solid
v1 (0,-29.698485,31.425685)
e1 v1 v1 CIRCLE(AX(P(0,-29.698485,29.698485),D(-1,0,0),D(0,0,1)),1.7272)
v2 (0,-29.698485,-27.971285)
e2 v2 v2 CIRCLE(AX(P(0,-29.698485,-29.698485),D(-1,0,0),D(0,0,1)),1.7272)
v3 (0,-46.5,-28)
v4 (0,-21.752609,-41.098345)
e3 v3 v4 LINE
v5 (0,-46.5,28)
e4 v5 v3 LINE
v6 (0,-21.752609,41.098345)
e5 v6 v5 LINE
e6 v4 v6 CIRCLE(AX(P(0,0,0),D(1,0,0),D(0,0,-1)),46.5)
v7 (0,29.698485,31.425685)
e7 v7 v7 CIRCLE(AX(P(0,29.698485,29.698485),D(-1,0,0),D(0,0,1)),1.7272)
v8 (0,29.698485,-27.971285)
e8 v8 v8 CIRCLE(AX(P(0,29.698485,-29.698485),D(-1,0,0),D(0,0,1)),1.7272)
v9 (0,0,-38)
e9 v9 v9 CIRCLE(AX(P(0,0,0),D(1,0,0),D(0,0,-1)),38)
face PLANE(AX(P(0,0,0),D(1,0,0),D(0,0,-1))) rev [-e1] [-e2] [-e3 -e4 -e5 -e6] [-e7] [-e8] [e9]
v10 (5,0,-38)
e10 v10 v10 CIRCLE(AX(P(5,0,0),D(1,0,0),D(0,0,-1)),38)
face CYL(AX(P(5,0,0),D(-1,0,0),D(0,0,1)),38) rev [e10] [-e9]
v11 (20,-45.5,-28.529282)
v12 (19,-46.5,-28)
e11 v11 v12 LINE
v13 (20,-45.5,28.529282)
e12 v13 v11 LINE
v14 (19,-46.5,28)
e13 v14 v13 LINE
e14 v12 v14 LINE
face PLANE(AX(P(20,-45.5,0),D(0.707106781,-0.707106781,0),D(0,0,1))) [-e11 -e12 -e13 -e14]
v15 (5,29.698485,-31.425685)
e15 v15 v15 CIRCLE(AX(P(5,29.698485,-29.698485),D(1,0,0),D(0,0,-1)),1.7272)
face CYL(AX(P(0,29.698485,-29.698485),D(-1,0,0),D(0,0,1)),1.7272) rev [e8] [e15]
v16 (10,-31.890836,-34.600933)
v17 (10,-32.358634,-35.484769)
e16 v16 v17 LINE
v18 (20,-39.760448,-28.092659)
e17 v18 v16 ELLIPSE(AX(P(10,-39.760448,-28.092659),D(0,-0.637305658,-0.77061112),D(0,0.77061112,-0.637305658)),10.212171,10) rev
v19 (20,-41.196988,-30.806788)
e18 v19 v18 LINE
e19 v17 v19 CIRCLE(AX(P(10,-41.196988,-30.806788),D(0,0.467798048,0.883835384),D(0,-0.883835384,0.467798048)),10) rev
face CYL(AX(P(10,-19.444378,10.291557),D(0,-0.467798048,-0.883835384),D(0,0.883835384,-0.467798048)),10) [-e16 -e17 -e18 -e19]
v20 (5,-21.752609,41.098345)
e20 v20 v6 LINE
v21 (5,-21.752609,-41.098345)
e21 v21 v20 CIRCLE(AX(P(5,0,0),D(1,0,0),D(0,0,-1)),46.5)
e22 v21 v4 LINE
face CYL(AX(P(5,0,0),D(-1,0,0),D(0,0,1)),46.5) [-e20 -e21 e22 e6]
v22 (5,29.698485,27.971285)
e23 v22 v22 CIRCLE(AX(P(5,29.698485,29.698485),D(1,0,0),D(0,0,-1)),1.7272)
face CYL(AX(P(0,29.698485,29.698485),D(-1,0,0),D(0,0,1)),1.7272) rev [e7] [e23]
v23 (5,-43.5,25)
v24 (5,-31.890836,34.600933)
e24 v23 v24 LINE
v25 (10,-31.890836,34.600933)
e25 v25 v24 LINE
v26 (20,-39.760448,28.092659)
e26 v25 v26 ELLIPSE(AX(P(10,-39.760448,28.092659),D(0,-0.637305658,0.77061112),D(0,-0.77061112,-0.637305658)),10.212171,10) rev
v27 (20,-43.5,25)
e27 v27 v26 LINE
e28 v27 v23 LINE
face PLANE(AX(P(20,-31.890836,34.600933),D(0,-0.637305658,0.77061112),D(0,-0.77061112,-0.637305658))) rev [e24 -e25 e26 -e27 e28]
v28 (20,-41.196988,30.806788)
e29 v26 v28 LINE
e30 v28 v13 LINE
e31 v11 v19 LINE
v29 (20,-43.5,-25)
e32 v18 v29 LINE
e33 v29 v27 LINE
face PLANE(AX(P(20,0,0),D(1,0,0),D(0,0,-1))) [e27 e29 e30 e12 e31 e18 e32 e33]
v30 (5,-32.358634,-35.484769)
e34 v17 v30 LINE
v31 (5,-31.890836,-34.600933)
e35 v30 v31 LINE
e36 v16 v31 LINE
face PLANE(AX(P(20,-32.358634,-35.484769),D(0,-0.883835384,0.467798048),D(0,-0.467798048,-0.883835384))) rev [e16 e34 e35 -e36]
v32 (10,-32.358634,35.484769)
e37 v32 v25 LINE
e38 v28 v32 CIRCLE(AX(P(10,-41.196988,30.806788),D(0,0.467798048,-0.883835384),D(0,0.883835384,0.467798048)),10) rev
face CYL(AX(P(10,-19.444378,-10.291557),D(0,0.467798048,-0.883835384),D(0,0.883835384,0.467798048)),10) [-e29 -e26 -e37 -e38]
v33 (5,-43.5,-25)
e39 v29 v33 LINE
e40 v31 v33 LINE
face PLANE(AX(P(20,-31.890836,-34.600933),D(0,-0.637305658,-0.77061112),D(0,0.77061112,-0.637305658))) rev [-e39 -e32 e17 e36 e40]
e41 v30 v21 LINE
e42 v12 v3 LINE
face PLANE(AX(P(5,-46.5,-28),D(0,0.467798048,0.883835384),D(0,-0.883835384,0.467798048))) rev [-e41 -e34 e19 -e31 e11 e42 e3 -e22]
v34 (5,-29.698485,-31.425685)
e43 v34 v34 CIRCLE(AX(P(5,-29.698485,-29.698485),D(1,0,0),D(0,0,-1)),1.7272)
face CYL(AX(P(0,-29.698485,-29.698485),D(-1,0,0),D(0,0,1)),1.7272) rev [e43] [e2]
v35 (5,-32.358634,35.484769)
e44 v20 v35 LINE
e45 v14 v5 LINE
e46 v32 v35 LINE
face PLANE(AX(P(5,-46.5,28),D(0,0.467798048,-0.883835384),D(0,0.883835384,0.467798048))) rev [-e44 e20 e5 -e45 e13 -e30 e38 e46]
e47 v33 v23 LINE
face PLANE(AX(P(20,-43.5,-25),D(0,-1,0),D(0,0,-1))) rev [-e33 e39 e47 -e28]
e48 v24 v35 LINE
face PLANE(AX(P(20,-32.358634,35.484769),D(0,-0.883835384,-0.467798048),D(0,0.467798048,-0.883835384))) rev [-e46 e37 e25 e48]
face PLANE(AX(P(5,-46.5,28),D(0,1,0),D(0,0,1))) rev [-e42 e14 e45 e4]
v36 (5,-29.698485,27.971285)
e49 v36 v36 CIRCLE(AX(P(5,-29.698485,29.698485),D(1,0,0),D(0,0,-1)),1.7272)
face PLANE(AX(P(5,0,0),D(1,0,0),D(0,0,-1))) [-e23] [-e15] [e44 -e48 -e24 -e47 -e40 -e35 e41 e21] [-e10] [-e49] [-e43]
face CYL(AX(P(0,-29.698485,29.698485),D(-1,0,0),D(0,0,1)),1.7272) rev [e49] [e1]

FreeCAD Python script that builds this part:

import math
import FreeCAD as App
import Part
import Sketcher


def edges_at(feature, points):
    """Names of the edges that pass closest to the given points."""
    edges = feature.Shape.Edges
    near = lambda p: min(range(len(edges)), key=lambda i: edges[i].distToShape(Part.Vertex(*p))[0])
    return sorted({f"Edge{near(p) + 1}" for p in points})


def add_polygon(sketch, points):
    """Adds a closed chain of lines whose ends are joined by coincident constraints."""
    first, n = sketch.GeometryCount, len(points)
    for a, b in zip(points, points[1:] + points[:1]):
        sketch.addGeometry(Part.LineSegment(App.Vector(*a, 0), App.Vector(*b, 0)), False)
    for i in range(n):
        sketch.addConstraint(Sketcher.Constraint("Coincident", first + i, 2, first + (i + 1) % n, 1))

doc = App.newDocument("Part")
body = doc.addObject("PartDesign::Body", "Body")

sketch1 = body.newObject("Sketcher::SketchObject", "Sketch")
sketch1.AttachmentSupport = (doc.getObject("YZ_Plane"), [""])
sketch1.MapMode = "FlatFace"
sketch1.addGeometry(Part.LineSegment(App.Vector(-46, 28, 0), App.Vector(-46, -28, 0)), False)
sketch1.addGeometry(Part.LineSegment(App.Vector(-46, -28, 0), App.Vector(-22, -41, 0)), False)
sketch1.addGeometry(Part.ArcOfCircle(Part.Circle(App.Vector(0, 0, 0), App.Vector(0, 0, 1), 46), math.radians(-118), math.radians(118)), False)
sketch1.addGeometry(Part.LineSegment(App.Vector(-22, 41, 0), App.Vector(-46, 28, 0)), False)
sketch1.addGeometry(Part.Circle(App.Vector(0, 0, 0), App.Vector(0, 0, 1), 38), False)
sketch1.addConstraint(Sketcher.Constraint("Coincident", 0, 2, 1, 1))
sketch1.addConstraint(Sketcher.Constraint("Tangent", 1, 2, 2, 1))
sketch1.addConstraint(Sketcher.Constraint("Tangent", 2, 2, 3, 1))
sketch1.addConstraint(Sketcher.Constraint("Coincident", 3, 2, 0, 1))
sketch1.addConstraint(Sketcher.Constraint("Vertical", 0))
sketch1.addConstraint(Sketcher.Constraint("Coincident", 2, 3, -1, 1))
sketch1.addConstraint(Sketcher.Constraint("Coincident", 4, 3, -1, 1))
sketch1.addConstraint(Sketcher.Constraint("Vertical", 1, 2, 2, 2))
sketch1.addConstraint(Sketcher.Constraint("Diameter", 4, 76.0))
sketch1.addConstraint(Sketcher.Constraint("Radius", 2, 46.5))
sketch1.addConstraint(Sketcher.Constraint("DistanceY", 0, 2, 0, 1, 56.0))
sketch1.addConstraint(Sketcher.Constraint("Distance", 1, 28.0))
pad1 = body.newObject("PartDesign::Pad", "Pad")
pad1.Profile = sketch1
pad1.Length = 5

sketch2 = body.newObject("Sketcher::SketchObject", "Sketch001")
sketch2.AttachmentSupport = (doc.getObject("YZ_Plane"), [""])
sketch2.MapMode = "FlatFace"
sketch2.AttachmentOffset = App.Placement(App.Vector(0, 0, 5), App.Rotation())
add_polygon(sketch2, [(-46.5, 28), (-46.5, -28), (-32.4, -35.5), (-31.9, -34.6), (-43.5, -25), (-43.5, 25), (-31.9, 34.6), (-32.4, 35.5)])
sketch2.addConstraint(Sketcher.Constraint("Vertical", 0))
sketch2.addConstraint(Sketcher.Constraint("Vertical", 4))
sketch2.addConstraint(Sketcher.Constraint("Symmetric", 2, 2, 5, 2, -1))
sketch2.addConstraint(Sketcher.Constraint("Symmetric", 1, 2, 6, 2, -1))
sketch2.addConstraint(Sketcher.Constraint("Perpendicular", 1, 2))
sketch2.addConstraint(Sketcher.Constraint("Perpendicular", 6, 7))
sketch2.addConstraint(Sketcher.Constraint("Equal", 3, 5))
sketch2.addConstraint(Sketcher.Constraint("DistanceY", 0, 2, 0, 1, 56.0))
sketch2.addConstraint(Sketcher.Constraint("DistanceY", 4, 1, 4, 2, 50.0))
sketch2.addConstraint(Sketcher.Constraint("Distance", 1, 16.0))
sketch2.addConstraint(Sketcher.Constraint("Distance", 2, 1.0))
sketch2.addConstraint(Sketcher.Constraint("DistanceX", 0, 2, 3, 2, 3.0))
sketch2.addConstraint(Sketcher.Constraint("DistanceX", 0, 2, -1, 1, 46.5))
sketch2.addConstraint(Sketcher.Constraint("DistanceX", 1, 2, 2, 2, 0.467798))
pad2 = body.newObject("PartDesign::Pad", "Pad001")
pad2.Profile = sketch2
pad2.Length = 15

sketch3 = body.newObject("Sketcher::SketchObject", "Sketch002")
sketch3.AttachmentSupport = (doc.getObject("YZ_Plane"), [""])
sketch3.MapMode = "FlatFace"
sketch3.addGeometry(Part.Circle(App.Vector(-29.7, -29.7, 0), App.Vector(0, 0, 1), 1.7), False)
sketch3.addGeometry(Part.Circle(App.Vector(29.7, -29.7, 0), App.Vector(0, 0, 1), 1.7), False)
sketch3.addGeometry(Part.Circle(App.Vector(29.7, 29.7, 0), App.Vector(0, 0, 1), 1.7), False)
sketch3.addGeometry(Part.Circle(App.Vector(-29.7, 29.7, 0), App.Vector(0, 0, 1), 1.7), False)
sketch3.addConstraint(Sketcher.Constraint("Equal", 0, 1))
sketch3.addConstraint(Sketcher.Constraint("Equal", 1, 2))
sketch3.addConstraint(Sketcher.Constraint("Equal", 2, 3))
sketch3.addConstraint(Sketcher.Constraint("Symmetric", 0, 3, 2, 3, -1, 1))
sketch3.addConstraint(Sketcher.Constraint("Symmetric", 1, 3, 3, 3, -1, 1))
sketch3.addConstraint(Sketcher.Constraint("Symmetric", 0, 3, 1, 3, -2))
sketch3.addConstraint(Sketcher.Constraint("Diameter", 0, 3.4544))
sketch3.addConstraint(Sketcher.Constraint("DistanceX", 0, 3, 1, 3, 59.39697))
sketch3.addConstraint(Sketcher.Constraint("DistanceY", 1, 3, 2, 3, 59.39697))
doc.recompute()
hole = body.newObject("PartDesign::Hole", "Hole")
hole.Profile = sketch3
hole.ThreadType = "None"
hole.Diameter = 3.4544
hole.DepthType = "ThroughAll"
hole.Reversed = True
doc.recompute()

fillet = body.newObject("PartDesign::Fillet", "Fillet")
fillet.Base = (hole, edges_at(hole, [(20, -32.125, -35.043), (20, -32.125, 35.043)]))
fillet.Radius = 10
doc.recompute()

chamfer = body.newObject("PartDesign::Chamfer", "Chamfer")
chamfer.Base = (fillet, edges_at(fillet, [(20, -46.5, 0)]))
chamfer.Size = 1

doc.recompute()
